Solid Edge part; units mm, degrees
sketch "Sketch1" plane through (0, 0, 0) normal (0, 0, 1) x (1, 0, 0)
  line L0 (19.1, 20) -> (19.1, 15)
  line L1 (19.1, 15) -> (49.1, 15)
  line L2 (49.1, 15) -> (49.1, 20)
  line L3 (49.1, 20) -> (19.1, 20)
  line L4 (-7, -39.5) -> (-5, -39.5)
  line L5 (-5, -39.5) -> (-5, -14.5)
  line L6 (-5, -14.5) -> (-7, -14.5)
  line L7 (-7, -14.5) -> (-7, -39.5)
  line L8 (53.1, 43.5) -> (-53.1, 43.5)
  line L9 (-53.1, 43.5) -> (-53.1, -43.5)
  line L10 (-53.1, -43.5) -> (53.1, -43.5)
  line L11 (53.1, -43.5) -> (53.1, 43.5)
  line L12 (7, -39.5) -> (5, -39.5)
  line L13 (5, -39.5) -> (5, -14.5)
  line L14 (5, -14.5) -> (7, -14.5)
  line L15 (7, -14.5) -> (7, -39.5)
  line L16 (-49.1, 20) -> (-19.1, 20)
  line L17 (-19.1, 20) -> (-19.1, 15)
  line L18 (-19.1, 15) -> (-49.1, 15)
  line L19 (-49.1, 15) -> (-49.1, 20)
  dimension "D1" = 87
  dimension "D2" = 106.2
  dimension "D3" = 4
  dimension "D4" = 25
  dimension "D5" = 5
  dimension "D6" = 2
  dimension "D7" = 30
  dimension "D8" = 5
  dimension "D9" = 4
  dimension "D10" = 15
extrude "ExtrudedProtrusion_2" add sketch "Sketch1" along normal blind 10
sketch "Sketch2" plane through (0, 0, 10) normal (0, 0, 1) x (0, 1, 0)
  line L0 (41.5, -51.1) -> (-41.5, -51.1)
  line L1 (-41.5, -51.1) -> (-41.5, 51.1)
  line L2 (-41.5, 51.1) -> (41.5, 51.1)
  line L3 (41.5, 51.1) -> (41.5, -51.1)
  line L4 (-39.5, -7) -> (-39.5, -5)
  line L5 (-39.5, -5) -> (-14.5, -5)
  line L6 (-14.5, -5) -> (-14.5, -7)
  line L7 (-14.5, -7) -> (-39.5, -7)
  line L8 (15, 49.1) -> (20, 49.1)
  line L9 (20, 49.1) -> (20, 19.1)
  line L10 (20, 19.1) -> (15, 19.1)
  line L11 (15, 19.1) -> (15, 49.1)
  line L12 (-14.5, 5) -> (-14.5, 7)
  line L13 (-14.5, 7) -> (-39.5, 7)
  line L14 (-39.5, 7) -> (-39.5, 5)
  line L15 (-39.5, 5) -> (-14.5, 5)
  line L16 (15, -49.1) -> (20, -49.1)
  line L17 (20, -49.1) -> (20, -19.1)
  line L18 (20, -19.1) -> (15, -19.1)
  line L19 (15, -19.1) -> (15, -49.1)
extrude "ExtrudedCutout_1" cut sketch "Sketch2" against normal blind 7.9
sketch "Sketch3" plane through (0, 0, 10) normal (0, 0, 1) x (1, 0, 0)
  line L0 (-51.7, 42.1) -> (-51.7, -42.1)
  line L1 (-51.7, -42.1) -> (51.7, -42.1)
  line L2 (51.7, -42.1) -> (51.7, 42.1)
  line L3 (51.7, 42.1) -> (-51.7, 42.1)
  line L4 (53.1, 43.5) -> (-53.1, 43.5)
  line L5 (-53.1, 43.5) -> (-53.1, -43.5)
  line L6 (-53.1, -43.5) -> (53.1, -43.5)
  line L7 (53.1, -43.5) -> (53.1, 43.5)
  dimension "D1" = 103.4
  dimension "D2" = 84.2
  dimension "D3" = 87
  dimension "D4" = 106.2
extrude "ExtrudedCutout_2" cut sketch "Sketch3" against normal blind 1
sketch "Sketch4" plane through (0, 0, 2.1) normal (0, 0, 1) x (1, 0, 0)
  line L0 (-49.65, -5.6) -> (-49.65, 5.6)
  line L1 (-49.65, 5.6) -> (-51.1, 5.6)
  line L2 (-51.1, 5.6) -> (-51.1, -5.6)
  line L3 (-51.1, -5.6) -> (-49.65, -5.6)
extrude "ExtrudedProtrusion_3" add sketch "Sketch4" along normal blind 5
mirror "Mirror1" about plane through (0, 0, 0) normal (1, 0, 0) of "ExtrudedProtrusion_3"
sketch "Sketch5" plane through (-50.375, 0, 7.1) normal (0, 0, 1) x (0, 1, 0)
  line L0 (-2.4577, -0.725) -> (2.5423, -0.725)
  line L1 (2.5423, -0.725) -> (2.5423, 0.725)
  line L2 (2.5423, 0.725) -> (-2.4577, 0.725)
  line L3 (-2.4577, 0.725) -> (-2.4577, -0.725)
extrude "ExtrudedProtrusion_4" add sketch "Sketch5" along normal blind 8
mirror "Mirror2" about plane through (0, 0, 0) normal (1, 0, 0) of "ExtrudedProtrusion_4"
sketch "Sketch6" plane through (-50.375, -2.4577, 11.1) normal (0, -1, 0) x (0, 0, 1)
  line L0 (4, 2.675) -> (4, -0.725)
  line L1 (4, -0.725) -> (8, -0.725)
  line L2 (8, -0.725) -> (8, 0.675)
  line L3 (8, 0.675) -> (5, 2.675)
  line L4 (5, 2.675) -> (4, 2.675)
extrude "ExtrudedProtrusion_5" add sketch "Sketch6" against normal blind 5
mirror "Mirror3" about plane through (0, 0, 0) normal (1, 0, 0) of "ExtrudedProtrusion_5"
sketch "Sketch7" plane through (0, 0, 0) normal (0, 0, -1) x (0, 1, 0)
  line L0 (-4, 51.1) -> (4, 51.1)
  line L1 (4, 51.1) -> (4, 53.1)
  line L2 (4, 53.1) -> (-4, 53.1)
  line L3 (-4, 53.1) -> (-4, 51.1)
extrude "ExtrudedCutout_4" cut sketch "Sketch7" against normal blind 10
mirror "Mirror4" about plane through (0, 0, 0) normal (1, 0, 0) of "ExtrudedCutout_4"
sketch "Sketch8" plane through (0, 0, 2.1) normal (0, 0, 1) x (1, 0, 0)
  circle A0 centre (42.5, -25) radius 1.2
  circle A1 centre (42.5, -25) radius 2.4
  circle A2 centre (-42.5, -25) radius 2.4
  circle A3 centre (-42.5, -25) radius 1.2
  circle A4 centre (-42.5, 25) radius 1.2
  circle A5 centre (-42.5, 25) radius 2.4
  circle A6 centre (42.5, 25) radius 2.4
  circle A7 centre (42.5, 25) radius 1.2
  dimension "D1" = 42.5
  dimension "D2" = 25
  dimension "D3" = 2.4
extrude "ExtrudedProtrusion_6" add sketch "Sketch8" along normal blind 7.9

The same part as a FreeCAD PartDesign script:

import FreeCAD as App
import Part
import Sketcher
from FreeCAD import Vector


def add_polygon(sketch, points):
    """Adds a closed chain of lines whose ends are joined by coincident constraints."""
    first, n = sketch.GeometryCount, len(points)
    for a, b in zip(points, points[1:] + points[:1]):
        sketch.addGeometry(Part.LineSegment(App.Vector(*a, 0), App.Vector(*b, 0)), False)
    for i in range(n):
        sketch.addConstraint(Sketcher.Constraint("Coincident", first + i, 2, first + (i + 1) % n, 1))

doc = App.newDocument("Part")
params = doc.addObject("Spreadsheet::Sheet", "Params")
for row, (alias, value) in enumerate([
    ("sketch1_width", "2 mm"),
    ("sketch1_width2", "30 mm"),
    ("sketch1_height", "87 mm"),
    ("sketch1_height2", "25 mm"),
    ("sketch1_height3", "5 mm"),
    ("pad1_length", "10 mm"),
    ("sketch2_width", "2 mm"),
    ("sketch2_width2", "30 mm"),
    ("sketch2_height", "83 mm"),
    ("sketch2_height2", "25 mm"),
    ("sketch2_height3", "5 mm"),
    ("pocket1_length", "7.9 mm"),
    ("sketch3_height", "87 mm"),
    ("sketch3_width", "106.2 mm"),
    ("sketch3_width2", "103.4 mm"),
    ("sketch3_height2", "84.2 mm"),
    ("pocket2_length", "1 mm"),
    ("sketch4_height", "11.2 mm"),
    ("sketch4_width", "1.45 mm"),
    ("pad2_length", "5 mm"),
    ("sketch5_height", "5 mm"),
    ("sketch5_width", "1.45 mm"),
    ("pad3_length", "8 mm"),
    ("sketch6_height", "1 mm"),
    ("sketch6_height2", "4 mm"),
    ("sketch6_width", "3.4 mm"),
    ("sketch6_width2", "1.4 mm"),
    ("pad4_length", "5 mm"),
    ("sketch7_width", "2 mm"),
    ("sketch7_height", "8 mm"),
    ("pocket3_length", "10 mm"),
    ("sketch8_diameter", "4.8 mm"),
    ("sketch8_diameter2", "2.4 mm"),
    ("pad5_length", "7.9 mm"),
], start=1):
    params.set(f"A{row}", alias)
    params.set(f"B{row}", "=" + value)
    params.setAlias(f"B{row}", alias)

body = doc.addObject("PartDesign::Body", "Body")

# Sketch on XY plane
sketch1 = body.newObject("Sketcher::SketchObject", "Sketch")
sketch1.AttachmentSupport = (doc.getObject("XY_Plane"), [""])
sketch1.MapMode = "FlatFace"
add_polygon(sketch1, [(53.1, -43.5), (53.1, 43.5), (-53.1, 43.5), (-53.1, -43.5)])  # lines 0-3
add_polygon(sketch1, [(-5, -39.5), (-7, -39.5), (-7, -14.5), (-5, -14.5)])  # lines 4-7
add_polygon(sketch1, [(7, -14.5), (7, -39.5), (5, -39.5), (5, -14.5)])  # lines 8-11
add_polygon(sketch1, [(-49.1, 15), (-49.1, 20), (-19.1, 20), (-19.1, 15)])  # lines 12-15
add_polygon(sketch1, [(19.1, 15), (19.1, 20), (49.1, 20), (49.1, 15)])  # lines 16-19
sketch1.addConstraint([
    Sketcher.Constraint("Vertical", 0),
    Sketcher.Constraint("Horizontal", 1),
    Sketcher.Constraint("Vertical", 2),
    Sketcher.Constraint("Horizontal", 3),
    Sketcher.Constraint("Horizontal", 4),
    Sketcher.Constraint("Vertical", 5),
    Sketcher.Constraint("Horizontal", 6),
    Sketcher.Constraint("Vertical", 7),
    Sketcher.Constraint("Vertical", 8),
    Sketcher.Constraint("Horizontal", 9),
    Sketcher.Constraint("Vertical", 10),
    Sketcher.Constraint("Horizontal", 11),
    Sketcher.Constraint("Vertical", 12),
    Sketcher.Constraint("Horizontal", 13),
    Sketcher.Constraint("Vertical", 14),
    Sketcher.Constraint("Horizontal", 15),
    Sketcher.Constraint("Vertical", 16),
    Sketcher.Constraint("Horizontal", 17),
    Sketcher.Constraint("Vertical", 18),
    Sketcher.Constraint("Horizontal", 19),
    Sketcher.Constraint("Symmetric", 0, 2, 2, 2, -1, 1),
    Sketcher.Constraint("Symmetric", 4, 2, 8, 2, -2),
    Sketcher.Constraint("Symmetric", 6, 2, 10, 2, -2),
    Sketcher.Constraint("Symmetric", 13, 2, 16, 2, -2),
    Sketcher.Constraint("Symmetric", 15, 2, 18, 2, -2),
    Sketcher.Constraint("DistanceX", 4, 2, 4, 1, 2.0),
    Sketcher.Constraint("DistanceX", 13, 1, 13, 2, 30.0),
    Sketcher.Constraint("DistanceY", 0, 1, 0, 2, 87.0),
    Sketcher.Constraint("DistanceY", 5, 1, 5, 2, 25.0),
    Sketcher.Constraint("DistanceY", 12, 1, 12, 2, 5.0),
    Sketcher.Constraint("DistanceX", 1, 2, 1, 1, 106.2),
    Sketcher.Constraint("DistanceX", 4, 2, -1, 1, 7.0),
    Sketcher.Constraint("DistanceY", -1, 1, 12, 2, 20.0),
    Sketcher.Constraint("DistanceY", 2, 2, 4, 2, 4.0),
    Sketcher.Constraint("DistanceX", 1, 2, 12, 2, 4.0),
])
sketch1.setExpression("Constraints[45]", "Params.sketch1_width")
sketch1.setExpression("Constraints[46]", "Params.sketch1_width2")
sketch1.setExpression("Constraints[47]", "Params.sketch1_height")
sketch1.setExpression("Constraints[48]", "Params.sketch1_height2")
sketch1.setExpression("Constraints[49]", "Params.sketch1_height3")
pad1 = body.newObject("PartDesign::Pad", "Pad")
pad1.Profile = sketch1
pad1.setExpression("Length", "Params.pad1_length")

# Sketch on XY plane
sketch2 = body.newObject("Sketcher::SketchObject", "Sketch001")
sketch2.AttachmentSupport = (doc.getObject("XY_Plane"), [""])
sketch2.MapMode = "FlatFace"
sketch2.AttachmentOffset = App.Placement(Vector(0, 0, 10), App.Rotation())
add_polygon(sketch2, [(51.1, -41.5), (51.1, 41.5), (-51.1, 41.5), (-51.1, -41.5)])  # lines 0-3
add_polygon(sketch2, [(7, -14.5), (7, -39.5), (5, -39.5), (5, -14.5)])  # lines 4-7
add_polygon(sketch2, [(49.1, 20), (49.1, 15), (19.1, 15), (19.1, 20)])  # lines 8-11
add_polygon(sketch2, [(-7, -14.5), (-5, -14.5), (-5, -39.5), (-7, -39.5)])  # lines 12-15
add_polygon(sketch2, [(-19.1, 15), (-49.1, 15), (-49.1, 20), (-19.1, 20)])  # lines 16-19
sketch2.addConstraint([
    Sketcher.Constraint("Vertical", 0),
    Sketcher.Constraint("Horizontal", 1),
    Sketcher.Constraint("Vertical", 2),
    Sketcher.Constraint("Horizontal", 3),
    Sketcher.Constraint("Vertical", 4),
    Sketcher.Constraint("Horizontal", 5),
    Sketcher.Constraint("Vertical", 6),
    Sketcher.Constraint("Horizontal", 7),
    Sketcher.Constraint("Vertical", 8),
    Sketcher.Constraint("Horizontal", 9),
    Sketcher.Constraint("Vertical", 10),
    Sketcher.Constraint("Horizontal", 11),
    Sketcher.Constraint("Horizontal", 12),
    Sketcher.Constraint("Vertical", 13),
    Sketcher.Constraint("Horizontal", 14),
    Sketcher.Constraint("Vertical", 15),
    Sketcher.Constraint("Horizontal", 16),
    Sketcher.Constraint("Vertical", 17),
    Sketcher.Constraint("Horizontal", 18),
    Sketcher.Constraint("Vertical", 19),
    Sketcher.Constraint("Symmetric", 0, 2, 2, 2, -1, 1),
    Sketcher.Constraint("Symmetric", 6, 2, 12, 2, -2),
    Sketcher.Constraint("Symmetric", 4, 2, 14, 2, -2),
    Sketcher.Constraint("Symmetric", 8, 2, 16, 2, -2),
    Sketcher.Constraint("Symmetric", 10, 2, 18, 2, -2),
    Sketcher.Constraint("DistanceX", 5, 2, 5, 1, 2.0),
    Sketcher.Constraint("DistanceX", 9, 2, 9, 1, 30.0),
    Sketcher.Constraint("DistanceY", 0, 1, 0, 2, 83.0),
    Sketcher.Constraint("DistanceY", 4, 2, 4, 1, 25.0),
    Sketcher.Constraint("DistanceY", 8, 2, 8, 1, 5.0),
    Sketcher.Constraint("DistanceX", 1, 2, 1, 1, 102.2),
    Sketcher.Constraint("DistanceX", -1, 1, 4, 2, 7.0),
    Sketcher.Constraint("DistanceY", -1, 1, 8, 2, 15.0),
    Sketcher.Constraint("DistanceY", 3, 2, 4, 2, 2.0),
    Sketcher.Constraint("DistanceX", 8, 2, 0, 2, 2.0),
])
sketch2.setExpression("Constraints[45]", "Params.sketch2_width")
sketch2.setExpression("Constraints[46]", "Params.sketch2_width2")
sketch2.setExpression("Constraints[47]", "Params.sketch2_height")
sketch2.setExpression("Constraints[48]", "Params.sketch2_height2")
sketch2.setExpression("Constraints[49]", "Params.sketch2_height3")
pocket1 = body.newObject("PartDesign::Pocket", "Pocket")
pocket1.Profile = sketch2
pocket1.setExpression("Length", "Params.pocket1_length")

# Sketch on XY plane
sketch3 = body.newObject("Sketcher::SketchObject", "Sketch002")
sketch3.AttachmentSupport = (doc.getObject("XY_Plane"), [""])
sketch3.MapMode = "FlatFace"
sketch3.AttachmentOffset = App.Placement(Vector(0, 0, 10), App.Rotation())
add_polygon(sketch3, [(53, -44), (53, 44), (-53, 44), (-53, -44)])  # lines 0-3
add_polygon(sketch3, [(-52, -42), (-52, 42), (52, 42), (52, -42)])  # lines 4-7
sketch3.addConstraint([
    Sketcher.Constraint("Vertical", 0),
    Sketcher.Constraint("Horizontal", 1),
    Sketcher.Constraint("Vertical", 2),
    Sketcher.Constraint("Horizontal", 3),
    Sketcher.Constraint("Vertical", 4),
    Sketcher.Constraint("Horizontal", 5),
    Sketcher.Constraint("Vertical", 6),
    Sketcher.Constraint("Horizontal", 7),
    Sketcher.Constraint("Symmetric", 0, 2, 2, 2, -1, 1),
    Sketcher.Constraint("Symmetric", 4, 2, 6, 2, -1, 1),
    Sketcher.Constraint("DistanceY", 0, 1, 0, 2, 87.0),
    Sketcher.Constraint("DistanceX", 1, 2, 1, 1, 106.2),
    Sketcher.Constraint("DistanceX", 5, 1, 5, 2, 103.4),
    Sketcher.Constraint("DistanceY", 4, 1, 4, 2, 84.2),
])
sketch3.setExpression("Constraints[18]", "Params.sketch3_height")
sketch3.setExpression("Constraints[19]", "Params.sketch3_width")
sketch3.setExpression("Constraints[20]", "Params.sketch3_width2")
sketch3.setExpression("Constraints[21]", "Params.sketch3_height2")
pocket2 = body.newObject("PartDesign::Pocket", "Pocket001")
pocket2.Profile = sketch3
pocket2.setExpression("Length", "Params.pocket2_length")

# Sketch on XY plane
sketch4 = body.newObject("Sketcher::SketchObject", "Sketch003")
sketch4.AttachmentSupport = (doc.getObject("XY_Plane"), [""])
sketch4.MapMode = "FlatFace"
sketch4.AttachmentOffset = App.Placement(Vector(0, 0, 2.1), App.Rotation())
add_polygon(sketch4, [(-51.1, -5.6), (-49.6, -5.6), (-49.6, 5.6), (-51.1, 5.6)])  # lines 0-3
sketch4.addConstraint([
    Sketcher.Constraint("Horizontal", 0),
    Sketcher.Constraint("Vertical", 1),
    Sketcher.Constraint("Horizontal", 2),
    Sketcher.Constraint("Vertical", 3),
    Sketcher.Constraint("DistanceY", 1, 1, 1, 2, 11.2),
    Sketcher.Constraint("DistanceX", 0, 1, 0, 2, 1.45),
    Sketcher.Constraint("DistanceY", 0, 2, -1, 1, 5.6),
    Sketcher.Constraint("DistanceX", 2, 2, -1, 1, 51.1),
])
sketch4.setExpression("Constraints[8]", "Params.sketch4_height")
sketch4.setExpression("Constraints[9]", "Params.sketch4_width")
pad2 = body.newObject("PartDesign::Pad", "Pad001")
pad2.Profile = sketch4
pad2.setExpression("Length", "Params.pad2_length")
doc.recompute()

mirrored = body.newObject("PartDesign::Mirrored", "Mirrored")
mirrored.Originals = [pad2]
mirrored.MirrorPlane = (doc.getObject("YZ_Plane"), [""])
body.Tip = mirrored

# Sketch on XY plane
sketch5 = body.newObject("Sketcher::SketchObject", "Sketch004")
sketch5.AttachmentSupport = (doc.getObject("XY_Plane"), [""])
sketch5.MapMode = "FlatFace"
sketch5.AttachmentOffset = App.Placement(Vector(0, 0, 7.1), App.Rotation())
add_polygon(sketch5, [(-51.1, -2.5), (-49.6, -2.5), (-49.6, 2.5), (-51.1, 2.5)])  # lines 0-3
sketch5.addConstraint([
    Sketcher.Constraint("Horizontal", 0),
    Sketcher.Constraint("Vertical", 1),
    Sketcher.Constraint("Horizontal", 2),
    Sketcher.Constraint("Vertical", 3),
    Sketcher.Constraint("DistanceY", 1, 1, 1, 2, 5.0),
    Sketcher.Constraint("DistanceX", 0, 1, 0, 2, 1.45),
    Sketcher.Constraint("DistanceX", 2, 2, -1, 1, 51.1),
    Sketcher.Constraint("DistanceY", 0, 2, -1, 1, 2.4577),
])
sketch5.setExpression("Constraints[8]", "Params.sketch5_height")
sketch5.setExpression("Constraints[9]", "Params.sketch5_width")
pad3 = body.newObject("PartDesign::Pad", "Pad002")
pad3.Profile = sketch5
pad3.setExpression("Length", "Params.pad3_length")
doc.recompute()

mirrored2 = body.newObject("PartDesign::Mirrored", "Mirrored001")
mirrored2.Originals = [pad3]
mirrored2.MirrorPlane = (doc.getObject("YZ_Plane"), [""])
body.Tip = mirrored2

# Sketch on XZ plane
sketch6 = body.newObject("Sketcher::SketchObject", "Sketch005")
sketch6.AttachmentSupport = (doc.getObject("XZ_Plane"), [""])
sketch6.MapMode = "FlatFace"
sketch6.AttachmentOffset = App.Placement(Vector(0, 0, 2.4577), App.Rotation())
add_polygon(sketch6, [(-53, 16.1), (-53, 15.1), (-49.6, 15.1), (-49.6, 19.1), (-51, 19.1)])  # lines 0-4
sketch6.addConstraint([
    Sketcher.Constraint("Vertical", 0),
    Sketcher.Constraint("Horizontal", 1),
    Sketcher.Constraint("Vertical", 2),
    Sketcher.Constraint("Horizontal", 3),
    Sketcher.Constraint("DistanceY", 0, 2, 0, 1, 1.0),
    Sketcher.Constraint("DistanceY", 2, 1, 2, 2, 4.0),
    Sketcher.Constraint("DistanceX", 1, 1, 1, 2, 3.4),
    Sketcher.Constraint("DistanceX", 3, 2, 3, 1, 1.4),
    Sketcher.Constraint("DistanceY", -1, 1, 0, 2, 15.1),
    Sketcher.Constraint("DistanceX", 0, 2, -1, 1, 53.05),
])
sketch6.setExpression("Constraints[9]", "Params.sketch6_height")
sketch6.setExpression("Constraints[10]", "Params.sketch6_height2")
sketch6.setExpression("Constraints[11]", "Params.sketch6_width")
sketch6.setExpression("Constraints[12]", "Params.sketch6_width2")
pad4 = body.newObject("PartDesign::Pad", "Pad003")
pad4.Profile = sketch6
pad4.setExpression("Length", "Params.pad4_length")
pad4.Reversed = True
doc.recompute()

mirrored3 = body.newObject("PartDesign::Mirrored", "Mirrored002")
mirrored3.Originals = [pad4]
mirrored3.MirrorPlane = (doc.getObject("YZ_Plane"), [""])
body.Tip = mirrored3

# Sketch on XY plane
sketch7 = body.newObject("Sketcher::SketchObject", "Sketch006")
sketch7.AttachmentSupport = (doc.getObject("XY_Plane"), [""])
sketch7.MapMode = "FlatFace"
add_polygon(sketch7, [(53.1, -4), (51.1, -4), (51.1, 4), (53.1, 4)])  # lines 0-3
sketch7.addConstraint([
    Sketcher.Constraint("Horizontal", 0),
    Sketcher.Constraint("Vertical", 1),
    Sketcher.Constraint("Horizontal", 2),
    Sketcher.Constraint("Vertical", 3),
    Sketcher.Constraint("DistanceX", 0, 2, 0, 1, 2.0),
    Sketcher.Constraint("DistanceY", 1, 1, 1, 2, 8.0),
    Sketcher.Constraint("DistanceY", 0, 2, -1, 1, 4.0),
    Sketcher.Constraint("DistanceX", -1, 1, 0, 2, 51.1),
])
sketch7.setExpression("Constraints[8]", "Params.sketch7_width")
sketch7.setExpression("Constraints[9]", "Params.sketch7_height")
pocket3 = body.newObject("PartDesign::Pocket", "Pocket002")
pocket3.Profile = sketch7
pocket3.setExpression("Length", "Params.pocket3_length")
pocket3.Reversed = True
doc.recompute()

mirrored4 = body.newObject("PartDesign::Mirrored", "Mirrored003")
mirrored4.Originals = [pocket3]
mirrored4.MirrorPlane = (doc.getObject("YZ_Plane"), [""])
body.Tip = mirrored4

# Sketch on XY plane
sketch8 = body.newObject("Sketcher::SketchObject", "Sketch007")
sketch8.AttachmentSupport = (doc.getObject("XY_Plane"), [""])
sketch8.MapMode = "FlatFace"
sketch8.AttachmentOffset = App.Placement(Vector(0, 0, 2.1), App.Rotation())
sketch8.addGeometry([
    Part.Circle(Vector(42.5, -25, 0), Vector(0, 0, 1), 2.4),  # 0
    Part.Circle(Vector(42.5, -25, 0), Vector(0, 0, 1), 1.2),  # 1
    Part.Circle(Vector(-42.5, -25, 0), Vector(0, 0, 1), 2.4),  # 2
    Part.Circle(Vector(-42.5, -25, 0), Vector(0, 0, 1), 1.2),  # 3
    Part.Circle(Vector(-42.5, 25, 0), Vector(0, 0, 1), 2.4),  # 4
    Part.Circle(Vector(-42.5, 25, 0), Vector(0, 0, 1), 1.2),  # 5
    Part.Circle(Vector(42.5, 25, 0), Vector(0, 0, 1), 2.4),  # 6
    Part.Circle(Vector(42.5, 25, 0), Vector(0, 0, 1), 1.2),  # 7
], False)
sketch8.addConstraint([
    Sketcher.Constraint("Coincident", 1, 3, 0, 3),
    Sketcher.Constraint("Coincident", 3, 3, 2, 3),
    Sketcher.Constraint("Coincident", 5, 3, 4, 3),
    Sketcher.Constraint("Coincident", 7, 3, 6, 3),
    Sketcher.Constraint("Equal", 0, 2),
    Sketcher.Constraint("Equal", 1, 3),
    Sketcher.Constraint("Equal", 2, 4),
    Sketcher.Constraint("Equal", 3, 5),
    Sketcher.Constraint("Equal", 4, 6),
    Sketcher.Constraint("Equal", 5, 7),
    Sketcher.Constraint("Symmetric", 0, 3, 4, 3, -1, 1),
    Sketcher.Constraint("Symmetric", 2, 3, 6, 3, -1, 1),
    Sketcher.Constraint("Symmetric", 0, 3, 2, 3, -2),
    Sketcher.Constraint("Diameter", 0, 4.8),
    Sketcher.Constraint("Diameter", 1, 2.4),
    Sketcher.Constraint("DistanceY", 0, 3, -1, 1, 25.0),
    Sketcher.Constraint("DistanceX", 2, 3, 0, 3, 85.0),
])
sketch8.setExpression("Constraints[13]", "Params.sketch8_diameter")
sketch8.setExpression("Constraints[14]", "Params.sketch8_diameter2")
pad5 = body.newObject("PartDesign::Pad", "Pad004")
pad5.Profile = sketch8
pad5.setExpression("Length", "Params.pad5_length")

doc.recompute()
